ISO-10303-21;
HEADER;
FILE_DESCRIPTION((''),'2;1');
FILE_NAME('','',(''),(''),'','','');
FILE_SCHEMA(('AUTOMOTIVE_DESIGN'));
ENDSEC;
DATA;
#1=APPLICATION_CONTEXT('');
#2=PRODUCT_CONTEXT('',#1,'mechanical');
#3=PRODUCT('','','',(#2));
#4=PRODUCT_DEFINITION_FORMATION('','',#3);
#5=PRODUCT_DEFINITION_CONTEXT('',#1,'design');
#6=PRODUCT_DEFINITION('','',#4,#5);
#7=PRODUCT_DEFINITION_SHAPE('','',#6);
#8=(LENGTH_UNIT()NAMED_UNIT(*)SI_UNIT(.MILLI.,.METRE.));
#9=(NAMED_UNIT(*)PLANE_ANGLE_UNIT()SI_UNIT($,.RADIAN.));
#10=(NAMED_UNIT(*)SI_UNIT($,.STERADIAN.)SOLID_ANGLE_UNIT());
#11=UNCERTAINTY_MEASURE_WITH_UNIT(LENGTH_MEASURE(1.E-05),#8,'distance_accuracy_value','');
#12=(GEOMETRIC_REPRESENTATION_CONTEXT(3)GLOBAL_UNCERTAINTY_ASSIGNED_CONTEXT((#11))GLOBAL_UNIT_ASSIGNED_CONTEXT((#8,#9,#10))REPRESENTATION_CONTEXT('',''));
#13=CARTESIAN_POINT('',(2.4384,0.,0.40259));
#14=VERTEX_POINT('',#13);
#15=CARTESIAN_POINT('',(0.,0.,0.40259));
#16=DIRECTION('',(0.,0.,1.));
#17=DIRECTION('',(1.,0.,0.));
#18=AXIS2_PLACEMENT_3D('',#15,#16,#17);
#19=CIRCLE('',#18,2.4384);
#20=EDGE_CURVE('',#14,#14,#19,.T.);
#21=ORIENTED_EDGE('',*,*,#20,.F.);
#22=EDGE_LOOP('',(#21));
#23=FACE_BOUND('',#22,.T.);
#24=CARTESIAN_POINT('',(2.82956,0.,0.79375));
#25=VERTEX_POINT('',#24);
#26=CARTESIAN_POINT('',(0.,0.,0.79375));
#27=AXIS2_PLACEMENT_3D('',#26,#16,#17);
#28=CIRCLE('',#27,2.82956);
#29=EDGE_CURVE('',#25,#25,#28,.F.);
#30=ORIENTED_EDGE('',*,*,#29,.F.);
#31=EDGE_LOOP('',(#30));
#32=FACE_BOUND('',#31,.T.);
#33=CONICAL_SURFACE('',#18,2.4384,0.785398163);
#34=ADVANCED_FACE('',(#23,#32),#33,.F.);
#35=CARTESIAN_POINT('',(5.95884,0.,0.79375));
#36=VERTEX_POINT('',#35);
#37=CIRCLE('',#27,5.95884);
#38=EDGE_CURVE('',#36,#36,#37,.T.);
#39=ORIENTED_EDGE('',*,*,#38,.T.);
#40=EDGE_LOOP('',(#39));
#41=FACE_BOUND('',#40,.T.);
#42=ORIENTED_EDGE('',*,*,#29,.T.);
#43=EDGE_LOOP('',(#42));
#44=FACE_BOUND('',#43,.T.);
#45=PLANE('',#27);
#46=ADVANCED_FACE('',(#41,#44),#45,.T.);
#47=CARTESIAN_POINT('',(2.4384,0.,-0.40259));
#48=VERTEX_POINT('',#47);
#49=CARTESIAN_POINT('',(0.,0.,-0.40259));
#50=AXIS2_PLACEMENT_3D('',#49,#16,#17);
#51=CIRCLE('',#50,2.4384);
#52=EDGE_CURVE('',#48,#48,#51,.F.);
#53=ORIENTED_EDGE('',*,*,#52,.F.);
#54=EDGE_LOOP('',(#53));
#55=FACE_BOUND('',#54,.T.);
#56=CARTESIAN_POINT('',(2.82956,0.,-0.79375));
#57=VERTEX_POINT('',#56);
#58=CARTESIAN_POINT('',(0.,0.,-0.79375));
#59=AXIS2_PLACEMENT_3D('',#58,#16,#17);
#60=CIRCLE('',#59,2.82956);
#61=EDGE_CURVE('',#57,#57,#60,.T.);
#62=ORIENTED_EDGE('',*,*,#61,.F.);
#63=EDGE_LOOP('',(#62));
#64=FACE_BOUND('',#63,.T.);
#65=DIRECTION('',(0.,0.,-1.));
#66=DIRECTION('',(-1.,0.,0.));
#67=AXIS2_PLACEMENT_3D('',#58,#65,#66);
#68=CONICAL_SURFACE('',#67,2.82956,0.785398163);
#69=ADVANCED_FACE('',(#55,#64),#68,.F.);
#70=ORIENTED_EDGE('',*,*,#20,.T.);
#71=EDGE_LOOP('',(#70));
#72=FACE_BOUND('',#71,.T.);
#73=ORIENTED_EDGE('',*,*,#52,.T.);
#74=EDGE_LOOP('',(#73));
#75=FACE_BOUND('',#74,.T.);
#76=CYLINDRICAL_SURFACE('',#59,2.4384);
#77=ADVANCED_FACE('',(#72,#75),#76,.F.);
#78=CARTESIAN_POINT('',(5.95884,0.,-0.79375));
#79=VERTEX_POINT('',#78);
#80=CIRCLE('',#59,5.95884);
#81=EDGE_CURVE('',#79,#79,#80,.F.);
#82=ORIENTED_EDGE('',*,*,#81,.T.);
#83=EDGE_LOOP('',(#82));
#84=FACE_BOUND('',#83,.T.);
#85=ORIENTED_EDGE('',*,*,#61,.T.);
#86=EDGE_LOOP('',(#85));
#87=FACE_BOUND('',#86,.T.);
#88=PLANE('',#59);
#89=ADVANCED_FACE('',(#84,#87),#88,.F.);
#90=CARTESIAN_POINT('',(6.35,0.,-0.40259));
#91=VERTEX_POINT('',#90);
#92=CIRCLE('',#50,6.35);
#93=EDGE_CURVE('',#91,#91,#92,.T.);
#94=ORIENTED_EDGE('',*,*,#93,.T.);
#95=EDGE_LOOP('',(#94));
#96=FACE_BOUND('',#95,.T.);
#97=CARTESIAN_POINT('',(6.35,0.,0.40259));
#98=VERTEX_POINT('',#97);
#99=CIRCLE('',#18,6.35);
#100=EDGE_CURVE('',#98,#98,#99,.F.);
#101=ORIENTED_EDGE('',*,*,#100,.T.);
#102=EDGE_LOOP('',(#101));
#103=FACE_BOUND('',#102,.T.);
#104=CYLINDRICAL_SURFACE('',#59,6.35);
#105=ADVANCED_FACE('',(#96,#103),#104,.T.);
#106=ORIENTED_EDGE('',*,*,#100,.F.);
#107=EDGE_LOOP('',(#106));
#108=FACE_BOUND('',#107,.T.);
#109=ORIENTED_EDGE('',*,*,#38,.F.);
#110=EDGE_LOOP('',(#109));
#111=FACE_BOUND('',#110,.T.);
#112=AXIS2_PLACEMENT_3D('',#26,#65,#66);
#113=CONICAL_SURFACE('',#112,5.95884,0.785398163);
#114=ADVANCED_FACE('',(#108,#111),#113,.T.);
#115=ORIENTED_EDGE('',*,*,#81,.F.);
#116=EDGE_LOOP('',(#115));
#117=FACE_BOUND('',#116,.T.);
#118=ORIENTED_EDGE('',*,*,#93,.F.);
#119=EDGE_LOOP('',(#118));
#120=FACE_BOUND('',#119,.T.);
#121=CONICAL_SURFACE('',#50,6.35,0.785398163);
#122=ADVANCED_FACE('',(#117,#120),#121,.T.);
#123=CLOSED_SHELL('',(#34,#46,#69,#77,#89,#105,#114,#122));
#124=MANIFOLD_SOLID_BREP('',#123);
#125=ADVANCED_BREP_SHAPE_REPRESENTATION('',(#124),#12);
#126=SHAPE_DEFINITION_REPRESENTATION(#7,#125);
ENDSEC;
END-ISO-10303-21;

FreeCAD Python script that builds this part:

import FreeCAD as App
import Part
import Sketcher

V = App.Vector
Q = App.Units.Quantity


def edges_at(feature, points):
    """Names of the edges that pass closest to the given points."""
    edges = feature.Shape.Edges
    near = lambda p: min(range(len(edges)), key=lambda i: edges[i].distToShape(Part.Vertex(*p))[0])
    return sorted({f"Edge{near(p) + 1}" for p in points})

doc = App.newDocument("Part")
params = doc.addObject("Spreadsheet::Sheet", "Params")
for row, (alias, value) in enumerate([
    ("sketch1_diameter", "0.5 in"),
    ("sketch1_diameter2", "0.192 in"),
    ("pad1_length", "0.03125 in"),
    ("pad1_length2", "0.03125 in"),
    ("chamfer_size", "0.0154 in"),
], start=1):
    params.set(f"A{row}", alias)
    params.set(f"B{row}", "=" + value)
    params.setAlias(f"B{row}", alias)

body = doc.addObject("PartDesign::Body", "Body")

# Sketch on XY plane
sketch1 = body.newObject("Sketcher::SketchObject", "Sketch")
sketch1.AttachmentSupport = (doc.getObject("XY_Plane"), [""])
sketch1.MapMode = "FlatFace"
sketch1.addGeometry(Part.Circle(V(0, 0, 0), V(0, 0, 1), 6.3), False)
sketch1.addGeometry(Part.Circle(V(0, 0, 0), V(0, 0, 1), 2.4), False)
sketch1.addConstraint(Sketcher.Constraint("Coincident", 0, 3, -1, 1))
sketch1.addConstraint(Sketcher.Constraint("Coincident", 1, 3, -1, 1))
sketch1.addConstraint(Sketcher.Constraint("Diameter", 0, Q("0.5 in")))
sketch1.addConstraint(Sketcher.Constraint("Diameter", 1, Q("0.192 in")))
sketch1.setExpression("Constraints[2]", "Params.sketch1_diameter")
sketch1.setExpression("Constraints[3]", "Params.sketch1_diameter2")
pad1 = body.newObject("PartDesign::Pad", "Pad")
pad1.Profile = sketch1
pad1.Type = "TwoLengths"
pad1.setExpression("Length", "Params.pad1_length")
pad1.setExpression("Length2", "Params.pad1_length2")
doc.recompute()

chamfer = body.newObject("PartDesign::Chamfer", "Chamfer")
chamfer.Base = (pad1, edges_at(pad1, [
    (-6.35, 0, -0.794),
    (-2.438, 0, -0.794),
    (-6.35, 0, 0.794),
    (-2.438, 0, 0.794),
]))
chamfer.setExpression("Size", "Params.chamfer_size")

doc.recompute()
